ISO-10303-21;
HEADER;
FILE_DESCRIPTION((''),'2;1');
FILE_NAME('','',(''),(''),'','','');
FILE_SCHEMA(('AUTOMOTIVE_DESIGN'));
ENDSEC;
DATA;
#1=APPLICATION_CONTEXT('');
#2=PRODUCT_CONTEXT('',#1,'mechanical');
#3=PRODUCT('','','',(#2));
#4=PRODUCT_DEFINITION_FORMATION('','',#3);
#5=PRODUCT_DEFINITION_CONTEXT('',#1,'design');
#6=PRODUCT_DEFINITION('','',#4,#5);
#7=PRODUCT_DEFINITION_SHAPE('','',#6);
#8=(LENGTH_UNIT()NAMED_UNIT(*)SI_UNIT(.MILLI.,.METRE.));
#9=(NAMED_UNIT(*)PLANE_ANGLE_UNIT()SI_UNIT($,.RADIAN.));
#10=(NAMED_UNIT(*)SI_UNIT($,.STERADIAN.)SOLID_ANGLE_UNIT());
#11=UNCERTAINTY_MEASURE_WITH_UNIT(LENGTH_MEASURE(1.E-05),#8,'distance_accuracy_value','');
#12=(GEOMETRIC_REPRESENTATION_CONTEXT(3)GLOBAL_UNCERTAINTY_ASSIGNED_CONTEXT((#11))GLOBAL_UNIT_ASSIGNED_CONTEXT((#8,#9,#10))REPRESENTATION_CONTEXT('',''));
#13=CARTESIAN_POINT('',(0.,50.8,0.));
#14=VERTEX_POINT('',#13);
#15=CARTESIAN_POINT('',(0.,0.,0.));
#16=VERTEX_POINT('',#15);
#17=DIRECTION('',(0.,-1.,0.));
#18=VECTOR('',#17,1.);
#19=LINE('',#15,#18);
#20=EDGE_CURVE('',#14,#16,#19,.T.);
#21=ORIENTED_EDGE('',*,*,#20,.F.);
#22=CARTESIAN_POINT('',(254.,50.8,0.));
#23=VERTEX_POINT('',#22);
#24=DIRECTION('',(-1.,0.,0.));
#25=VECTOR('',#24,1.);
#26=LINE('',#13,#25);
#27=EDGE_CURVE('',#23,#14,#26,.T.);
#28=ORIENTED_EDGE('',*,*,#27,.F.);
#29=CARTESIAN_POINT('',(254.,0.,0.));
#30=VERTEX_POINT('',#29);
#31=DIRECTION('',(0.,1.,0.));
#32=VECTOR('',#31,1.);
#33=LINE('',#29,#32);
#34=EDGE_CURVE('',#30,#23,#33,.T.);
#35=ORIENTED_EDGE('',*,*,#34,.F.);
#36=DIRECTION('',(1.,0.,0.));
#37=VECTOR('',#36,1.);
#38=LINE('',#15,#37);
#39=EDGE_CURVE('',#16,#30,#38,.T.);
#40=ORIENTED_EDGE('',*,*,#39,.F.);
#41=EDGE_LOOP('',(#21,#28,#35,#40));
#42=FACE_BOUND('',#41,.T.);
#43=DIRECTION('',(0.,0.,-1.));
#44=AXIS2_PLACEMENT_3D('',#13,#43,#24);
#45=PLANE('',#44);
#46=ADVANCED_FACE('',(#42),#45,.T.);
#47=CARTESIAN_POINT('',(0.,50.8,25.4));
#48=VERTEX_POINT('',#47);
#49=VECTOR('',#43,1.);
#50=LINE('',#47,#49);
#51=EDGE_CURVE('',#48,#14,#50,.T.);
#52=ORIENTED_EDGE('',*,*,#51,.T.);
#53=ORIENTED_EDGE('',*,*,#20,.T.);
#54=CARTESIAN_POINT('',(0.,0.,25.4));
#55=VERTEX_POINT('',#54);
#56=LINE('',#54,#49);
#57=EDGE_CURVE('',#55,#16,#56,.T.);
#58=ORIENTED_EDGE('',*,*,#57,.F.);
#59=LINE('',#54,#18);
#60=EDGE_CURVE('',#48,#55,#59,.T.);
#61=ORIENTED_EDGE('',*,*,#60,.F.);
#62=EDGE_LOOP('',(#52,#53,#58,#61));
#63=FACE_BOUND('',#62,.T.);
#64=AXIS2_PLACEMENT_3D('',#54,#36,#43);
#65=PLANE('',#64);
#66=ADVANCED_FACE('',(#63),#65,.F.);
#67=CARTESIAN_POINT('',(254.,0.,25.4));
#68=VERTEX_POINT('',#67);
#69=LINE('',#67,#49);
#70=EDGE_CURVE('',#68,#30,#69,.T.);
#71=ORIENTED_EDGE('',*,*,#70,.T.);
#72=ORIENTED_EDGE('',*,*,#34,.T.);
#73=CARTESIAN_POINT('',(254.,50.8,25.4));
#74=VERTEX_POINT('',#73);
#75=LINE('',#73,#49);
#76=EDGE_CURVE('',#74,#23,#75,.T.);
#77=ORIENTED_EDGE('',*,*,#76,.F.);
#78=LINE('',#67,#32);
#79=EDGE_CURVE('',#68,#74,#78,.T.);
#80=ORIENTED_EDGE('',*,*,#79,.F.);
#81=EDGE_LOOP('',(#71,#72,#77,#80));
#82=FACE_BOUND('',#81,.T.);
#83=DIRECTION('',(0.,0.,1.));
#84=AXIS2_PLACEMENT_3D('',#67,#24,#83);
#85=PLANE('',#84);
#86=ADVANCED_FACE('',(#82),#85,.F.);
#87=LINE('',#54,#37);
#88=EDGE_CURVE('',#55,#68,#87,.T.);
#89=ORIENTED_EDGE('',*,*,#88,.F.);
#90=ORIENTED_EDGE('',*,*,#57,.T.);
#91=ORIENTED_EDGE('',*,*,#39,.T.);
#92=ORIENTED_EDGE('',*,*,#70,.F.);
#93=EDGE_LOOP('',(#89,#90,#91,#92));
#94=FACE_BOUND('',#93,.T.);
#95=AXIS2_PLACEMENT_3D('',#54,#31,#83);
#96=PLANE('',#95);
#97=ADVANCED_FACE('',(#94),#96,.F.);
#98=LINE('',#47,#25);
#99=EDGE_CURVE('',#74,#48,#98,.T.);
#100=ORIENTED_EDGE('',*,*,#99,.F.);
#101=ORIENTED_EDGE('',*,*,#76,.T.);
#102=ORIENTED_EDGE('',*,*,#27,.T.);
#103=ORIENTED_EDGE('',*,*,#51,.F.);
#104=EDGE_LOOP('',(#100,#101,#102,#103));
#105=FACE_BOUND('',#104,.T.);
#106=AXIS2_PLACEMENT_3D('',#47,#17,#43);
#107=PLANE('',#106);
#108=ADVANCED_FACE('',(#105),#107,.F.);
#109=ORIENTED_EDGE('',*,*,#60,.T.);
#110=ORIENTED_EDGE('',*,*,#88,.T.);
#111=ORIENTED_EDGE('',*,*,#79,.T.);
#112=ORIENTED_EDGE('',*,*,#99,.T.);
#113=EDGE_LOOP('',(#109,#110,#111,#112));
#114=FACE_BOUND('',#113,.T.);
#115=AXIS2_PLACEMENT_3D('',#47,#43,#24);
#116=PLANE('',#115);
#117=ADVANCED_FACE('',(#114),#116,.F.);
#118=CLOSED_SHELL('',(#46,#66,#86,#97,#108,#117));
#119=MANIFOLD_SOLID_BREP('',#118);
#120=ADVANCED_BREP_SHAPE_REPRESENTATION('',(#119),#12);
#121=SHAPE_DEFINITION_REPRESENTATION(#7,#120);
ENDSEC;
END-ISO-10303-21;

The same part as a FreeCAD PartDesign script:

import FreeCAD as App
import Part
import Sketcher
from FreeCAD import Vector
Q = App.Units.Quantity

doc = App.newDocument("Part")
body = doc.addObject("PartDesign::Body", "Body")

# Sketch on XY plane
sketch1 = body.newObject("Sketcher::SketchObject", "Sketch")
sketch1.AttachmentSupport = (doc.getObject("XY_Plane"), [""])
sketch1.MapMode = "FlatFace"
sketch1.addGeometry([
    Part.LineSegment(Vector(0, 50.8, 0), Vector(0, 0, 0)),
    Part.LineSegment(Vector(0, 0, 0), Vector(254, 0, 0)),
    Part.LineSegment(Vector(254, 0, 0), Vector(254, 50.8, 0)),
    Part.LineSegment(Vector(254, 50.8, 0), Vector(0, 50.8, 0)),
], False)
sketch1.addConstraint([
    Sketcher.Constraint("Coincident", 0, 2, 1, 1),
    Sketcher.Constraint("Coincident", 1, 2, 2, 1),
    Sketcher.Constraint("Coincident", 2, 2, 3, 1),
    Sketcher.Constraint("Coincident", 3, 2, 0, 1),
    Sketcher.Constraint("Vertical", 0),
    Sketcher.Constraint("Horizontal", 1),
    Sketcher.Constraint("Vertical", 2),
    Sketcher.Constraint("Horizontal", 3),
    Sketcher.Constraint("Coincident", 0, 2, -1, 1),
    Sketcher.Constraint("DistanceX", 1, 1, 1, 2, Q("10 in")),
    Sketcher.Constraint("DistanceY", 0, 2, 0, 1, Q("2 in")),
])
pad1 = body.newObject("PartDesign::Pad", "Pad")
pad1.Profile = sketch1
pad1.Length = Q("1 in")

doc.recompute()
